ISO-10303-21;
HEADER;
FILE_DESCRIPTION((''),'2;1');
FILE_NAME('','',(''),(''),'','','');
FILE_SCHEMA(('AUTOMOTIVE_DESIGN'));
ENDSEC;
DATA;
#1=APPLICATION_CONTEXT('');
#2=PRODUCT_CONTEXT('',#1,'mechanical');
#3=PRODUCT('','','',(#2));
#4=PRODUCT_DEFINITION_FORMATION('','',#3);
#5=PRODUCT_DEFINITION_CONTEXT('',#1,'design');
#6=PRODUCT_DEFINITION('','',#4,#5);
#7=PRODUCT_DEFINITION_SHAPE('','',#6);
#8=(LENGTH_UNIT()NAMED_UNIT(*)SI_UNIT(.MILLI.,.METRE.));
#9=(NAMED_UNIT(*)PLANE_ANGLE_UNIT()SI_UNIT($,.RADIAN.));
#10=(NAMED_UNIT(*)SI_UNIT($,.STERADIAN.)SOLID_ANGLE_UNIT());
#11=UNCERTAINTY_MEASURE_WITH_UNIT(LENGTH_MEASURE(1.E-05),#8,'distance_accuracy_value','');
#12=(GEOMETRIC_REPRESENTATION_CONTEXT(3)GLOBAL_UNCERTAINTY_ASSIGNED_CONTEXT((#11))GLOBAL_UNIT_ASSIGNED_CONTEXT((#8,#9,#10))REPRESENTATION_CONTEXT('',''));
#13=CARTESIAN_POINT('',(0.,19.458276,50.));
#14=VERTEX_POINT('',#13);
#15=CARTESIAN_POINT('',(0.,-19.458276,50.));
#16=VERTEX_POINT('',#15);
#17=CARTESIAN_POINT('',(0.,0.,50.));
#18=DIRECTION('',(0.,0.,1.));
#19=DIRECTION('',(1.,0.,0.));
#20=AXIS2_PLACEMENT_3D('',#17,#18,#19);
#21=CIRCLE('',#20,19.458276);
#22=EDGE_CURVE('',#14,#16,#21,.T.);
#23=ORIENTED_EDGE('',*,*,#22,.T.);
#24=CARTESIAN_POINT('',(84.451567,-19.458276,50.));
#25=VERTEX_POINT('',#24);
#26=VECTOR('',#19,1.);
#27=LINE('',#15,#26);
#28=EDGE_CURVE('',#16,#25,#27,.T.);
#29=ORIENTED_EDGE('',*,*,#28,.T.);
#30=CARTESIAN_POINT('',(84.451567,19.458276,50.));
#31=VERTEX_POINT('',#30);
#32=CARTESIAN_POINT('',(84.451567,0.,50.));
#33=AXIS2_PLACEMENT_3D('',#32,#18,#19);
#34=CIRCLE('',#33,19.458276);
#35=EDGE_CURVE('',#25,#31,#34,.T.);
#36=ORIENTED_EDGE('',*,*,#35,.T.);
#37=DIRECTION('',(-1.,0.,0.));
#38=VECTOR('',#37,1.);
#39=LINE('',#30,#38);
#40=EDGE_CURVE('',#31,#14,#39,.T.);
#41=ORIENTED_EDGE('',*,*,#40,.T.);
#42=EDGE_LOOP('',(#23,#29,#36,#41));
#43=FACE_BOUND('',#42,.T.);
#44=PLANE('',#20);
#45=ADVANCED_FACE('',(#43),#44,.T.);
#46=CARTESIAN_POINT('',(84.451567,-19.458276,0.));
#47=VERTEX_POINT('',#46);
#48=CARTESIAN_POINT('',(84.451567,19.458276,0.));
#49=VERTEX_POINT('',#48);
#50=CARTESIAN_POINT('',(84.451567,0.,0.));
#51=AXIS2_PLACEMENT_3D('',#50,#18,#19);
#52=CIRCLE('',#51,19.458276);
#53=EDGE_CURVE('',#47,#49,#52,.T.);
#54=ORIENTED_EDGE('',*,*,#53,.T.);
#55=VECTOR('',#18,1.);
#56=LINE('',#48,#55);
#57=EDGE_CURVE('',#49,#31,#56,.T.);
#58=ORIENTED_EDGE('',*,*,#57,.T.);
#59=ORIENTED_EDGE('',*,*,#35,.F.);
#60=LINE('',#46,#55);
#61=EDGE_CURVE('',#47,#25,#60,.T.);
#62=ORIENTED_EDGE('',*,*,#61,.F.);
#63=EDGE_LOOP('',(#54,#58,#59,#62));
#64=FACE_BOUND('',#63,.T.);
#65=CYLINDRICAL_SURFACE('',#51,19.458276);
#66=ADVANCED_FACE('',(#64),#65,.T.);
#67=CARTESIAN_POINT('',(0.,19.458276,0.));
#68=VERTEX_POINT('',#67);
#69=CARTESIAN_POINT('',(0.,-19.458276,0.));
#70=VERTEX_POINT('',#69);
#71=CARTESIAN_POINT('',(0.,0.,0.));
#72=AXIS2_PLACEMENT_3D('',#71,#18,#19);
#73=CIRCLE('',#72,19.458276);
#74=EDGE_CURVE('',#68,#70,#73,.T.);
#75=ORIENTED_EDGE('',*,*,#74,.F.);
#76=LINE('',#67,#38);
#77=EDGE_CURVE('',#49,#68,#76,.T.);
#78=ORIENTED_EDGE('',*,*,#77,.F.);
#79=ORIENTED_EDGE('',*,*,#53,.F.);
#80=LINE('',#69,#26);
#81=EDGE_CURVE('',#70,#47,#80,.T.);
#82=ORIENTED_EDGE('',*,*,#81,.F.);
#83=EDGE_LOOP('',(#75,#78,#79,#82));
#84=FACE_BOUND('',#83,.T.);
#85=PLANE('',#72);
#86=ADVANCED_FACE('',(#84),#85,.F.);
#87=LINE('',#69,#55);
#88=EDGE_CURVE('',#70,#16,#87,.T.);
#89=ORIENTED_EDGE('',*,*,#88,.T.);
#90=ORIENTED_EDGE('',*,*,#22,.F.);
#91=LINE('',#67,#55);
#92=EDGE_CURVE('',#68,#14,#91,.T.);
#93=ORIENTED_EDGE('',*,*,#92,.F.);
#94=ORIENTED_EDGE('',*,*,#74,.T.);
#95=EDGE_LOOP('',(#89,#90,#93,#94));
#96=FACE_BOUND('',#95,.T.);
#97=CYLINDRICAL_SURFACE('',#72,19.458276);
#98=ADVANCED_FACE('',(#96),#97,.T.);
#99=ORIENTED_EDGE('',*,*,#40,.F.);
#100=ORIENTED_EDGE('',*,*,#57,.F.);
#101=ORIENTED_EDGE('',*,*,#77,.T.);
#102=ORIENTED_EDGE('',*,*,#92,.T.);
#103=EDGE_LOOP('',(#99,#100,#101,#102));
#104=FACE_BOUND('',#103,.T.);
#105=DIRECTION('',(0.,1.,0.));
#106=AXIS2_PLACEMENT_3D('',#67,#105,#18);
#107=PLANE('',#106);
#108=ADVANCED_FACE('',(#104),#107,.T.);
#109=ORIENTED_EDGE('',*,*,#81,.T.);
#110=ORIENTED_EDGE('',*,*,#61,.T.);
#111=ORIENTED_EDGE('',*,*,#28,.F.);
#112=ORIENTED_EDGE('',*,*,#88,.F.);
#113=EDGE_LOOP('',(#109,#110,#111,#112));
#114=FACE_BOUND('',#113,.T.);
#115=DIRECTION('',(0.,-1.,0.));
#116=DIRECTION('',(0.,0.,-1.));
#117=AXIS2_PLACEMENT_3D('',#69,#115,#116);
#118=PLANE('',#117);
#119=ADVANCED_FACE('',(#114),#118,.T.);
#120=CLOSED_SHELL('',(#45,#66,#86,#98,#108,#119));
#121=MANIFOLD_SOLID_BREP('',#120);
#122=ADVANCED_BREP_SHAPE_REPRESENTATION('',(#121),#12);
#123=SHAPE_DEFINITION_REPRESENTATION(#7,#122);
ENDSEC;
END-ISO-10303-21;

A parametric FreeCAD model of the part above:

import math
import FreeCAD as App
import Part
import Sketcher

doc = App.newDocument("Part")
body = doc.addObject("PartDesign::Body", "Body")

# Sketch on XY plane
sketch1 = body.newObject("Sketcher::SketchObject", "Sketch")
sketch1.AttachmentSupport = (doc.getObject("XY_Plane"), [""])
sketch1.MapMode = "FlatFace"
sketch1.AttachmentOffset = App.Placement(App.Vector(0, 0, 20), App.Rotation())
sketch1.addGeometry([
    Part.LineSegment(App.Vector(84, 19, 0), App.Vector(0, 19, 0)),
    Part.ArcOfCircle(Part.Circle(App.Vector(0, 0, 0), App.Vector(0, 0, 1), 19), math.radians(90), math.radians(270)),
    Part.LineSegment(App.Vector(0, -19, 0), App.Vector(84, -19, 0)),
    Part.ArcOfCircle(Part.Circle(App.Vector(84, 0, 0), App.Vector(0, 0, 1), 19), math.radians(-90), math.radians(90)),
], False)
sketch1.addConstraint([
    Sketcher.Constraint("Tangent", 0, 2, 1, 1),
    Sketcher.Constraint("Tangent", 1, 2, 2, 1),
    Sketcher.Constraint("Tangent", 2, 2, 3, 1),
    Sketcher.Constraint("Tangent", 3, 2, 0, 1),
    Sketcher.Constraint("Horizontal", 0),
    Sketcher.Constraint("Horizontal", 2),
    Sketcher.Constraint("Coincident", 1, 3, -1, 1),
    Sketcher.Constraint("Radius", 1, 19.458276),
    Sketcher.Constraint("DistanceX", 0, 2, 0, 1, 84.451567),
])
pad1 = body.newObject("PartDesign::Pad", "Pad")
pad1.Profile = sketch1
pad1.Length = 20
pad1.Reversed = True

# Sketch on XY plane
sketch2 = body.newObject("Sketcher::SketchObject", "Sketch001")
sketch2.AttachmentSupport = (doc.getObject("XY_Plane"), [""])
sketch2.MapMode = "FlatFace"
sketch2.AttachmentOffset = App.Placement(App.Vector(0, 0, 20), App.Rotation())
sketch2.addGeometry([
    Part.LineSegment(App.Vector(0, -19, 0), App.Vector(84, -19, 0)),
    Part.ArcOfCircle(Part.Circle(App.Vector(84, 0, 0), App.Vector(0, 0, 1), 19), math.radians(-90), math.radians(90)),
    Part.LineSegment(App.Vector(84, 19, 0), App.Vector(0, 19, 0)),
    Part.ArcOfCircle(Part.Circle(App.Vector(0, 0, 0), App.Vector(0, 0, 1), 19), math.radians(90), math.radians(270)),
], False)
sketch2.addConstraint([
    Sketcher.Constraint("Tangent", 0, 2, 1, 1),
    Sketcher.Constraint("Tangent", 1, 2, 2, 1),
    Sketcher.Constraint("Tangent", 2, 2, 3, 1),
    Sketcher.Constraint("Tangent", 3, 2, 0, 1),
    Sketcher.Constraint("Horizontal", 0),
    Sketcher.Constraint("Horizontal", 2),
    Sketcher.Constraint("Coincident", 3, 3, -1, 1),
    Sketcher.Constraint("Radius", 1, 19.458276),
    Sketcher.Constraint("DistanceX", 0, 1, 0, 2, 84.451567),
])
pad2 = body.newObject("PartDesign::Pad", "Pad001")
pad2.Profile = sketch2
pad2.Length = 30

doc.recompute()
